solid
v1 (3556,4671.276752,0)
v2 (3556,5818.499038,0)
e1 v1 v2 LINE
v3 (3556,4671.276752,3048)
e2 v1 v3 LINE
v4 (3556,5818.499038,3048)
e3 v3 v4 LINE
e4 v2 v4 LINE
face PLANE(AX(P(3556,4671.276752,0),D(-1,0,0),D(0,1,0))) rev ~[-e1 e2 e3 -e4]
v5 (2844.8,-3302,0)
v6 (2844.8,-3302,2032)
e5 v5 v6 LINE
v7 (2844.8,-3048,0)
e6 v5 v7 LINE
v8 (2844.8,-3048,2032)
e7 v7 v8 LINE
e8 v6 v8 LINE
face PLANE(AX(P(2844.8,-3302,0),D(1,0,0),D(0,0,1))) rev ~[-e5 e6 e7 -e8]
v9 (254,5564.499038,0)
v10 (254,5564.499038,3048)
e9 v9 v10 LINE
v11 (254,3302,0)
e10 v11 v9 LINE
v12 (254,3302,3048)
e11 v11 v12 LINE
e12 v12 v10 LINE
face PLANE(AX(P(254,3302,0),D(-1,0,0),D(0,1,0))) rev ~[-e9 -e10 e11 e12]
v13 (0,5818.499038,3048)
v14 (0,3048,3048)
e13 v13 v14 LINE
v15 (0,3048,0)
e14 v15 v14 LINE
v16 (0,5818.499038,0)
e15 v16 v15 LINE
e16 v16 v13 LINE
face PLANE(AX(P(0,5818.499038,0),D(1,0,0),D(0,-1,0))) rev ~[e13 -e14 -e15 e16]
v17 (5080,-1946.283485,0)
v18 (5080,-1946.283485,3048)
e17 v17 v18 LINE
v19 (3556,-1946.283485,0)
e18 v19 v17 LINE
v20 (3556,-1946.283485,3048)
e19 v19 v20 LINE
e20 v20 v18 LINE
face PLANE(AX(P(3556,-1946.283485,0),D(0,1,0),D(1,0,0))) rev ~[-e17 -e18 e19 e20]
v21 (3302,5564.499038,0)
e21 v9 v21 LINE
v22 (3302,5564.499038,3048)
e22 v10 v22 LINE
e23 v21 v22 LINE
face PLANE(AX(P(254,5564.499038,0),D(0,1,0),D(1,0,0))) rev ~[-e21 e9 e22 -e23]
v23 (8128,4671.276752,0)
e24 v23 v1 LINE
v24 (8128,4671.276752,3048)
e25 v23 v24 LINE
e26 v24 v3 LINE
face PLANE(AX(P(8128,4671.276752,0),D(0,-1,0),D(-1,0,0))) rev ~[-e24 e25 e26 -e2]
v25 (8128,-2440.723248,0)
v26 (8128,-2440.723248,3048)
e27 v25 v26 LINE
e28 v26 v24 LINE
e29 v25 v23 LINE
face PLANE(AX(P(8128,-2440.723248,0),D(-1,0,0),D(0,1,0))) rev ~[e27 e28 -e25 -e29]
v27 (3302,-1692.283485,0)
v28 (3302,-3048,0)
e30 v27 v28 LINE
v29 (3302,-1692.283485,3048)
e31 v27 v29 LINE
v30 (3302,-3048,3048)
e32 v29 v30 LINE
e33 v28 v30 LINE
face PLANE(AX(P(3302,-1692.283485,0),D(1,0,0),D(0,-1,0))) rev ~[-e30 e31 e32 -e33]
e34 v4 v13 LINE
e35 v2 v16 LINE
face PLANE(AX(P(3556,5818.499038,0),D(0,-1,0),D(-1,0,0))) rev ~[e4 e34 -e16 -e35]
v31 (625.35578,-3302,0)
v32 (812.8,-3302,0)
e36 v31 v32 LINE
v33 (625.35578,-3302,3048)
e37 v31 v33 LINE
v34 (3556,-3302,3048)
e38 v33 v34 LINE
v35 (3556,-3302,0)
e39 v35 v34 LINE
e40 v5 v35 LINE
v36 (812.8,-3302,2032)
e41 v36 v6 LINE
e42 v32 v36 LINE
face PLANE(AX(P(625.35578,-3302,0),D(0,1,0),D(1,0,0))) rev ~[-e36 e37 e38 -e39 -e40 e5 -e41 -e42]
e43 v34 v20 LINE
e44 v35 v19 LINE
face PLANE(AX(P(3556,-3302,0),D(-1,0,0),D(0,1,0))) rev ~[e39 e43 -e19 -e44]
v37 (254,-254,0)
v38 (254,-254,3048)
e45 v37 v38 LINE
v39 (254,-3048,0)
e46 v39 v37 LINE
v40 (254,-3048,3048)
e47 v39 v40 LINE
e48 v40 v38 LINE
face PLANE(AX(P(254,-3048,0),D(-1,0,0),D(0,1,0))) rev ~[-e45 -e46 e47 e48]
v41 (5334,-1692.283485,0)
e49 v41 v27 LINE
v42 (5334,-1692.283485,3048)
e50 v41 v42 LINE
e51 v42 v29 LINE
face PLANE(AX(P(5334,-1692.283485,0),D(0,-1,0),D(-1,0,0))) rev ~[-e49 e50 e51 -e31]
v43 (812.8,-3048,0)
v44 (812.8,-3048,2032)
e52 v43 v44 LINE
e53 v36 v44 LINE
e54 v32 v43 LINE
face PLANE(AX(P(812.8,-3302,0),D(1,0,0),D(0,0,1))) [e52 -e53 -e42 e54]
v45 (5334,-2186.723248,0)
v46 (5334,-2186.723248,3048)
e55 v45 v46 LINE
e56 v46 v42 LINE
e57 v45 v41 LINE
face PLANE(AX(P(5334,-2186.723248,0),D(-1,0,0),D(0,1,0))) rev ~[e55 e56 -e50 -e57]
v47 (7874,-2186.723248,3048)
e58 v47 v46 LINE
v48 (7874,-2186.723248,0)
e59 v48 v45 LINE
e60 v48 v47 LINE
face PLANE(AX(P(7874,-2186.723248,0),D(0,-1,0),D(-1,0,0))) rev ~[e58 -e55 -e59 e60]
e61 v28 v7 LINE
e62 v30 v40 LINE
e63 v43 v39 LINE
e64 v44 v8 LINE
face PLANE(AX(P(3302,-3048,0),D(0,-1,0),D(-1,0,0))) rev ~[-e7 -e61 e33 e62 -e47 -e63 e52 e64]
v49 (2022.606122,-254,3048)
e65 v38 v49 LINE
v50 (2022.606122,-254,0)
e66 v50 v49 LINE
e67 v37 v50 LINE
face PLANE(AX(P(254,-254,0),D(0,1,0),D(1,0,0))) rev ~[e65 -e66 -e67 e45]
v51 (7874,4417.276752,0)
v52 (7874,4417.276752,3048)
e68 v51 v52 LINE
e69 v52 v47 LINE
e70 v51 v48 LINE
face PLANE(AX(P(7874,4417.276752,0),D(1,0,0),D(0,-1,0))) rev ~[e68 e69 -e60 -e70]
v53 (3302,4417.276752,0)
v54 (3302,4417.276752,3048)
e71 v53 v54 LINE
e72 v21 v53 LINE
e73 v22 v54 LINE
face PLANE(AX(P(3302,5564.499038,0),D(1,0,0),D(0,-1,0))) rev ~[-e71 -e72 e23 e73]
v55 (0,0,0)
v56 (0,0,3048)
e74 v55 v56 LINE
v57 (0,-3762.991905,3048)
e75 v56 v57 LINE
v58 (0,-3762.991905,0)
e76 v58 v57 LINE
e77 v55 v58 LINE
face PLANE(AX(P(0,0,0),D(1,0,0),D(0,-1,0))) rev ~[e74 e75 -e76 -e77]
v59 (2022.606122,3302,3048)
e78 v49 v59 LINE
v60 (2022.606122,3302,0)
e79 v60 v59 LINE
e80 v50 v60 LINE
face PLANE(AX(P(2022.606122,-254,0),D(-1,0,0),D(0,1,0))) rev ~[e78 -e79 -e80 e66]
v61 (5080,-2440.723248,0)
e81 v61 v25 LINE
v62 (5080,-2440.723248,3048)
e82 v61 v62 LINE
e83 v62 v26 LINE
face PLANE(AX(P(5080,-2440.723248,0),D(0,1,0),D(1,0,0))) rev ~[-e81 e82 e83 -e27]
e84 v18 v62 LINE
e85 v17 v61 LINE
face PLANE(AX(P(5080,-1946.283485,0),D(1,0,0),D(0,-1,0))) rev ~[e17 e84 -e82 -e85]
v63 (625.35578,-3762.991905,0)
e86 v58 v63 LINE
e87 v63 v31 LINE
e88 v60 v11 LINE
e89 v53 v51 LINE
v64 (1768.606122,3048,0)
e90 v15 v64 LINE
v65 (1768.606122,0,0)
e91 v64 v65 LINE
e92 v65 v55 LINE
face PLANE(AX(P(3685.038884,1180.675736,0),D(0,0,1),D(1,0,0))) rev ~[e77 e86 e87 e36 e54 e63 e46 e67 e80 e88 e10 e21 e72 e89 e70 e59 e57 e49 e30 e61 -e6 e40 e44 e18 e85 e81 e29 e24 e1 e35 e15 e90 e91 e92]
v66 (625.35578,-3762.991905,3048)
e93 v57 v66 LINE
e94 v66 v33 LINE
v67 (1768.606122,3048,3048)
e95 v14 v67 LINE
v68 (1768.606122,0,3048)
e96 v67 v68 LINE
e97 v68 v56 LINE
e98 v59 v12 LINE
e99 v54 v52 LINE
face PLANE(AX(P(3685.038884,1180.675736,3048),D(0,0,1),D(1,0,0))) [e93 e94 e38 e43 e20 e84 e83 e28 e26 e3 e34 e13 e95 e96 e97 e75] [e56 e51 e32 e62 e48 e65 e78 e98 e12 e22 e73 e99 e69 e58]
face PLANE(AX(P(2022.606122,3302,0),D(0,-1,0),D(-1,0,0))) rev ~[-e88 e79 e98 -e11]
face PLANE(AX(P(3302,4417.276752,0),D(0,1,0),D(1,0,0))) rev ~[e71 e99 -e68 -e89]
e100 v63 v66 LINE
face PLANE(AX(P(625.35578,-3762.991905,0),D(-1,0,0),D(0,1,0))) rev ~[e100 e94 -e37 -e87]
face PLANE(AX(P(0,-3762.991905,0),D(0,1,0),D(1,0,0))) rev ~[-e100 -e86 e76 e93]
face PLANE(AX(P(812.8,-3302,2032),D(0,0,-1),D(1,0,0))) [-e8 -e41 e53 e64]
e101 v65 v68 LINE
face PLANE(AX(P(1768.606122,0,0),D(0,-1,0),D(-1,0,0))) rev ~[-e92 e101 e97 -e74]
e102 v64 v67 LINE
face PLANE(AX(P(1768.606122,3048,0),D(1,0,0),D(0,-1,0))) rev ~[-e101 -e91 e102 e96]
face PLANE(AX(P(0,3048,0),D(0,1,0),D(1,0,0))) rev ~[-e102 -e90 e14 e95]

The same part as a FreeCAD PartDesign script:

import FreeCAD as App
import Part
import Sketcher
Q = App.Units.Quantity


def add_polygon(sketch, points):
    """Adds a closed chain of lines whose ends are joined by coincident constraints."""
    first, n = sketch.GeometryCount, len(points)
    for a, b in zip(points, points[1:] + points[:1]):
        sketch.addGeometry(Part.LineSegment(App.Vector(*a, 0), App.Vector(*b, 0)), False)
    for i in range(n):
        sketch.addConstraint(Sketcher.Constraint("Coincident", first + i, 2, first + (i + 1) % n, 1))

doc = App.newDocument("Part")
body = doc.addObject("PartDesign::Body", "Body")

# Sketch on XY plane
sketch1 = body.newObject("Sketcher::SketchObject", "Sketch")
sketch1.AttachmentSupport = (doc.getObject("XY_Plane"), [""])
sketch1.MapMode = "FlatFace"
add_polygon(sketch1, [(1769, 3048), (1769, 0), (0, 0), (0, -3763), (625, -3763), (625, -3302), (3556, -3302), (3556, -1946), (5080, -1946), (5080, -2441), (8128, -2441), (8128, 4671), (3556, 4671), (3556, 5818), (0, 5818), (0, 3048)])  # lines 0-15
add_polygon(sketch1, [(254, 5564), (3302, 5564), (3302, 4417), (7874, 4417), (7874, -2187), (5334, -2187), (5334, -1692), (3302, -1692), (3302, -3048), (254, -3048), (254, -254), (2023, -254), (2023, 3302), (254, 3302)])  # lines 16-29
sketch1.addConstraint([
    Sketcher.Constraint("Vertical", 0),
    Sketcher.Constraint("Horizontal", 1),
    Sketcher.Constraint("Vertical", 2),
    Sketcher.Constraint("Horizontal", 3),
    Sketcher.Constraint("Vertical", 4),
    Sketcher.Constraint("Horizontal", 5),
    Sketcher.Constraint("Vertical", 6),
    Sketcher.Constraint("Horizontal", 7),
    Sketcher.Constraint("Vertical", 8),
    Sketcher.Constraint("Horizontal", 9),
    Sketcher.Constraint("Vertical", 10),
    Sketcher.Constraint("Horizontal", 11),
    Sketcher.Constraint("Vertical", 12),
    Sketcher.Constraint("Horizontal", 13),
    Sketcher.Constraint("Vertical", 14),
    Sketcher.Constraint("Horizontal", 15),
    Sketcher.Constraint("Horizontal", 16),
    Sketcher.Constraint("Vertical", 17),
    Sketcher.Constraint("Horizontal", 18),
    Sketcher.Constraint("Vertical", 19),
    Sketcher.Constraint("Horizontal", 20),
    Sketcher.Constraint("Vertical", 21),
    Sketcher.Constraint("Horizontal", 22),
    Sketcher.Constraint("Vertical", 23),
    Sketcher.Constraint("Horizontal", 24),
    Sketcher.Constraint("Vertical", 25),
    Sketcher.Constraint("Horizontal", 26),
    Sketcher.Constraint("Vertical", 27),
    Sketcher.Constraint("Horizontal", 28),
    Sketcher.Constraint("Vertical", 29),
    Sketcher.Constraint("Coincident", 1, 2, -1, 1),
    Sketcher.Constraint("PointOnObject", 13, 2, -2),
    Sketcher.Constraint("Vertical", 6, 2, 11, 2),
    Sketcher.Constraint("Vertical", 17, 2, 22, 2),
    Sketcher.Constraint("Vertical", 25, 2, 28, 2),
    Sketcher.Constraint("Equal", 9, 16),
    Sketcher.Constraint("Equal", 11, 18),
    Sketcher.Constraint("Equal", 15, 26),
    Sketcher.Constraint("Equal", 24, 0),
    Sketcher.Constraint("Equal", 12, 17),
    Sketcher.Constraint("Equal", 8, 21),
    Sketcher.Constraint("Equal", 6, 23),
    Sketcher.Constraint("Equal", 13, 27),
    Sketcher.Constraint("DistanceX", 7, 1, 7, 2, Q("60 in")),
    Sketcher.Constraint("DistanceX", 9, 1, 9, 2, Q("120 in")),
    Sketcher.Constraint("DistanceX", 13, 2, 13, 1, Q("140 in")),
    Sketcher.Constraint("DistanceX", 20, 2, 20, 1, Q("100 in")),
    Sketcher.Constraint("DistanceY", 10, 1, 10, 2, Q("280 in")),
    Sketcher.Constraint("DistanceY", 19, 2, 19, 1, Q("260 in")),
    Sketcher.Constraint("DistanceY", 25, 1, 25, 2, Q("110 in")),
    Sketcher.Constraint("DistanceY", 4, 2, -1, 1, Q("130 in")),
    Sketcher.Constraint("DistanceX", -1, 1, 16, 2, Q("130 in")),
    Sketcher.Constraint("DistanceY", 23, 2, -1, 1, Q("120 in")),
    Sketcher.Constraint("DistanceX", 1, 2, 1, 1, Q("1768.606122 mm")),
    Sketcher.Constraint("DistanceX", 3, 1, 3, 2, Q("625.35578 mm")),
    Sketcher.Constraint("DistanceY", 2, 2, 2, 1, Q("3762.991905 mm")),
    Sketcher.Constraint("DistanceY", 6, 1, 6, 2, Q("1355.716515 mm")),
    Sketcher.Constraint("DistanceY", 8, 2, 8, 1, Q("494.439763 mm")),
    Sketcher.Constraint("DistanceY", 12, 1, 12, 2, Q("1147.222286 mm")),
])
pad1 = body.newObject("PartDesign::Pad", "Pad")
pad1.Profile = sketch1
pad1.Length = Q("120 in")

# Sketch on XZ plane
sketch2 = body.newObject("Sketcher::SketchObject", "Sketch001")
sketch2.AttachmentSupport = (doc.getObject("XZ_Plane"), [""])
sketch2.MapMode = "FlatFace"
sketch2.AttachmentOffset = App.Placement(App.Vector(0, 0, 130 * 25.4), App.Rotation())
add_polygon(sketch2, [(813, 2032), (813, 0), (2845, 0), (2845, 2032)])  # lines 0-3
sketch2.addConstraint([
    Sketcher.Constraint("Vertical", 0),
    Sketcher.Constraint("Horizontal", 1),
    Sketcher.Constraint("Vertical", 2),
    Sketcher.Constraint("Horizontal", 3),
    Sketcher.Constraint("PointOnObject", 0, 2, -1),
    Sketcher.Constraint("Equal", 3, 0),
    Sketcher.Constraint("DistanceX", 1, 1, 1, 2, Q("80 in")),
    Sketcher.Constraint("DistanceX", -1, 1, 0, 2, Q("32 in")),
])
pocket1 = body.newObject("PartDesign::Pocket", "Pocket")
pocket1.Profile = sketch2
pocket1.Length = Q("14 in")

doc.recompute()
